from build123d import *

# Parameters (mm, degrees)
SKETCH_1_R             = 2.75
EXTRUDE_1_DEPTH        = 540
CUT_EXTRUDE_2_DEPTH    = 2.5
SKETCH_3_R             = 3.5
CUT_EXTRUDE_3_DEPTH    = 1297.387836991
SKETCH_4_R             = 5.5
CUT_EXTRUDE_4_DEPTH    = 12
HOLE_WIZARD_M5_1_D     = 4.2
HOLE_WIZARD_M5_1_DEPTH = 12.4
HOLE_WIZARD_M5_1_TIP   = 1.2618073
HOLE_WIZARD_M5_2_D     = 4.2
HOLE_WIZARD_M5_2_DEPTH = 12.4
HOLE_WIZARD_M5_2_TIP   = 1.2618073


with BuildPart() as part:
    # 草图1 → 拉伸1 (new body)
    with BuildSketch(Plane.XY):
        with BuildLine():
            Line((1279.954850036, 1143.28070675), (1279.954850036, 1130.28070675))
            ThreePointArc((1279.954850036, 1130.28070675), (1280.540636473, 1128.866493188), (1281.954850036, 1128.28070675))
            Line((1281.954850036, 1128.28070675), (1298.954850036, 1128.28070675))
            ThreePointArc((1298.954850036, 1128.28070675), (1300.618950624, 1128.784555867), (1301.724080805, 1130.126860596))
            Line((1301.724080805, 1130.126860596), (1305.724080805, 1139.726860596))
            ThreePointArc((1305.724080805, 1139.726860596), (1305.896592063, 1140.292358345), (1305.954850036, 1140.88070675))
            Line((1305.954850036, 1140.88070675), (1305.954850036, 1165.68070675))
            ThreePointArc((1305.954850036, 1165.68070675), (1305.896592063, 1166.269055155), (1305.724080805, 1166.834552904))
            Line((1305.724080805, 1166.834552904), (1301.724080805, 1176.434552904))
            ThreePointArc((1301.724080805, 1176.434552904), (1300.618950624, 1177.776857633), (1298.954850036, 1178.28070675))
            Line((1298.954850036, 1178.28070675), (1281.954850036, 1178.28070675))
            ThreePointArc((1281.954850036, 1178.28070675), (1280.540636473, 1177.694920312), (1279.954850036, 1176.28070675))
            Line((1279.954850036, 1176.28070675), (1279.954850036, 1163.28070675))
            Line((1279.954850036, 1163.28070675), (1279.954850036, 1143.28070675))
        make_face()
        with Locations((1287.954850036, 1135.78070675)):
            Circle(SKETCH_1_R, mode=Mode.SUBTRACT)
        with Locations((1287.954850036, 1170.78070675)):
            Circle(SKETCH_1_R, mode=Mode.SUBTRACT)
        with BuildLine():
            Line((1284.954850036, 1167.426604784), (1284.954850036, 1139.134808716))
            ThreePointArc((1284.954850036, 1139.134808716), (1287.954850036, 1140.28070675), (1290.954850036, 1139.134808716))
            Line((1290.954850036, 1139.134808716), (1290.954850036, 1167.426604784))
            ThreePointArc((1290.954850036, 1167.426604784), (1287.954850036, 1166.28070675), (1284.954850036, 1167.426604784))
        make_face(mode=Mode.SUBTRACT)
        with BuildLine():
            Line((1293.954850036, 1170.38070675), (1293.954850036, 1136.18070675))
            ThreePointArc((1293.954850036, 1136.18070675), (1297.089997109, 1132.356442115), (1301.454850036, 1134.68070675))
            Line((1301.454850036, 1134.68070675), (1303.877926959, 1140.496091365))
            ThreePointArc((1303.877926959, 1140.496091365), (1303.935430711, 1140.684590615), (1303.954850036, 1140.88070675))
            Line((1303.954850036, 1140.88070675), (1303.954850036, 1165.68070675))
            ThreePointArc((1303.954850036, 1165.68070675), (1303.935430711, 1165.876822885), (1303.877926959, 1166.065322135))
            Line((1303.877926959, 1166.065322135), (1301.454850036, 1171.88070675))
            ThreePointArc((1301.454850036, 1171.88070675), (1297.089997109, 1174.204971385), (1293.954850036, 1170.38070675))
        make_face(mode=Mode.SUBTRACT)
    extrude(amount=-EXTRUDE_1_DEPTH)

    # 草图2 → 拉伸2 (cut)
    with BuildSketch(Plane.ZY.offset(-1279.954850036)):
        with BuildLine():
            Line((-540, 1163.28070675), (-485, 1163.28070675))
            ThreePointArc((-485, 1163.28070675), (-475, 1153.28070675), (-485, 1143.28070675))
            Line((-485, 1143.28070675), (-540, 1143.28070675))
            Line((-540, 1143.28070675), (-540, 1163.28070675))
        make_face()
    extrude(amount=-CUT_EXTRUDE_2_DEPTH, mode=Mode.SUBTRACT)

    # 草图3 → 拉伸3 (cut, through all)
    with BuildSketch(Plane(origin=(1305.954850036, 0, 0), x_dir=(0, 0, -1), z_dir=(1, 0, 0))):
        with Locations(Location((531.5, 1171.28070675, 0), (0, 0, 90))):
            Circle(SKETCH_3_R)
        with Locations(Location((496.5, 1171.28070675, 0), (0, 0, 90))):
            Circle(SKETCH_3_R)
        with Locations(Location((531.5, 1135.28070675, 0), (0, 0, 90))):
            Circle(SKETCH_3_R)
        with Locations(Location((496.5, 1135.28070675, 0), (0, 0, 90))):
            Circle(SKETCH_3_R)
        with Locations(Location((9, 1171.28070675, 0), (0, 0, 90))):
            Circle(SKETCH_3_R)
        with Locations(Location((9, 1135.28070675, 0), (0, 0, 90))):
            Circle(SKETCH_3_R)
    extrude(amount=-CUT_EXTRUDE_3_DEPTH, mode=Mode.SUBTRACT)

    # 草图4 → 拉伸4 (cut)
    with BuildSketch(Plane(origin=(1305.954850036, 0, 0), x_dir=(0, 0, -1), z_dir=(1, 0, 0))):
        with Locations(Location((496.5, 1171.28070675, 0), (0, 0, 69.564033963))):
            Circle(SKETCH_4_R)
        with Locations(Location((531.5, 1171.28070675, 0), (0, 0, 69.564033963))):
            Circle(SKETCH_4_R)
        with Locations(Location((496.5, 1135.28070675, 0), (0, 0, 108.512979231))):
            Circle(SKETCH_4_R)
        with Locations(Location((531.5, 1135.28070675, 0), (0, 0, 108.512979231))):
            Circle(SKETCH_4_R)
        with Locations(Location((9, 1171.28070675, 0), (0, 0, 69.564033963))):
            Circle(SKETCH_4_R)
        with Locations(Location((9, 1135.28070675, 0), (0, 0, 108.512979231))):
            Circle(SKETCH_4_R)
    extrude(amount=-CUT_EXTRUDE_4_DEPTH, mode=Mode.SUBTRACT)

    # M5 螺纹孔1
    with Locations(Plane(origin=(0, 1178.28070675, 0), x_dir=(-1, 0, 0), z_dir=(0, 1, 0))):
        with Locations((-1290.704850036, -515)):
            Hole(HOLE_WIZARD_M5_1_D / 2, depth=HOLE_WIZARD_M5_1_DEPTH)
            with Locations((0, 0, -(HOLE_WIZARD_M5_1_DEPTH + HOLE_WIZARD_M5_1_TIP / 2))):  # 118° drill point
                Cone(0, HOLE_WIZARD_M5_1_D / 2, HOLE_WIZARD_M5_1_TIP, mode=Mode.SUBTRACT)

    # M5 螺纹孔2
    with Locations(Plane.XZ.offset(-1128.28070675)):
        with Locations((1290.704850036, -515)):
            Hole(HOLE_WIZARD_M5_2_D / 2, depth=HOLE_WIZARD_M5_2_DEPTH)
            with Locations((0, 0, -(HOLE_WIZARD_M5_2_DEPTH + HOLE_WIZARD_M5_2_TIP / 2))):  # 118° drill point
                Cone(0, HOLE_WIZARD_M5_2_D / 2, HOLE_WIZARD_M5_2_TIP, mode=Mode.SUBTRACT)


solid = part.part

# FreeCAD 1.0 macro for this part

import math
import FreeCAD as App
import Part
import Sketcher

doc = App.newDocument("Part")
params = doc.addObject("Spreadsheet::Sheet", "Params")
for row, (alias, value) in enumerate([
    ("sketch1_radius", "2 mm"),
    ("sketch1_radius2", "3 mm"),
    ("sketch1_radius3", "1 mm"),
    ("sketch1_diameter", "5.5 mm"),
    ("sketch1_radius4", "4.5 mm"),
    ("pad1_length", "540 mm"),
    ("sketch2_radius", "10 mm"),
    ("sketch2_height", "55 mm"),
    ("pocket1_length", "2.5 mm"),
    ("sketch3_diameter", "7 mm"),
    ("sketch4_diameter", "11 mm"),
    ("pocket3_length", "12 mm"),
    ("sketch5_diameter", "4.2 mm"),
    ("hole_diameter", "4.2 mm"),
    ("hole_depth", "12.4 mm"),
    ("sketch6_diameter", "4.2 mm"),
    ("hole2_diameter", "4.2 mm"),
    ("hole2_depth", "12.4 mm"),
], start=1):
    params.set(f"A{row}", alias)
    params.set(f"B{row}", "=" + value)
    params.setAlias(f"B{row}", alias)

body = doc.addObject("PartDesign::Body", "Body")

# Sketch on XY plane
sketch1 = body.newObject("Sketcher::SketchObject", "Sketch")
sketch1.AttachmentSupport = (doc.getObject("XY_Plane"), [""])
sketch1.MapMode = "FlatFace"
sketch1.addGeometry([
    Part.ArcOfCircle(Part.Circle(App.Vector(1281.95, 1130.28, 0), App.Vector(0, 0, 1), 2), math.radians(180), math.radians(270)),  # 0
    Part.LineSegment(App.Vector(1281.95, 1128.28, 0), App.Vector(1298.95, 1128.28, 0)),  # 1
    Part.ArcOfCircle(Part.Circle(App.Vector(1298.95, 1131.28, 0), App.Vector(0, 0, 1), 3), math.radians(-90), math.radians(-23)),  # 2
    Part.LineSegment(App.Vector(1301.72, 1130.13, 0), App.Vector(1305.72, 1139.73, 0)),  # 3
    Part.ArcOfCircle(Part.Circle(App.Vector(1302.95, 1140.88, 0), App.Vector(0, 0, 1), 3), math.radians(-23), math.radians(0)),  # 4
    Part.LineSegment(App.Vector(1305.95, 1140.88, 0), App.Vector(1305.95, 1165.68, 0)),  # 5
    Part.ArcOfCircle(Part.Circle(App.Vector(1302.95, 1165.68, 0), App.Vector(0, 0, 1), 3), math.radians(0), math.radians(23)),  # 6
    Part.LineSegment(App.Vector(1305.72, 1166.83, 0), App.Vector(1301.72, 1176.43, 0)),  # 7
    Part.ArcOfCircle(Part.Circle(App.Vector(1298.95, 1175.28, 0), App.Vector(0, 0, 1), 3), math.radians(23), math.radians(90)),  # 8
    Part.LineSegment(App.Vector(1298.95, 1178.28, 0), App.Vector(1281.95, 1178.28, 0)),  # 9
    Part.ArcOfCircle(Part.Circle(App.Vector(1281.95, 1176.28, 0), App.Vector(0, 0, 1), 2), math.radians(90), math.radians(180)),  # 10
    Part.LineSegment(App.Vector(1279.95, 1176.28, 0), App.Vector(1279.95, 1130.28, 0)),  # 11
    Part.Circle(App.Vector(1287.95, 1135.78, 0), App.Vector(0, 0, 1), 2.75),  # 12
    Part.LineSegment(App.Vector(1284.95, 1139.13, 0), App.Vector(1284.95, 1167.43, 0)),  # 13
    Part.ArcOfCircle(Part.Circle(App.Vector(1287.95, 1170.78, 0), App.Vector(0, 0, 1), 4.5), math.radians(-132), math.radians(-48)),  # 14
    Part.LineSegment(App.Vector(1290.95, 1167.43, 0), App.Vector(1290.95, 1139.13, 0)),  # 15
    Part.ArcOfCircle(Part.Circle(App.Vector(1287.95, 1135.78, 0), App.Vector(0, 0, 1), 4.5), math.radians(48), math.radians(132)),  # 16
    Part.Circle(App.Vector(1287.95, 1170.78, 0), App.Vector(0, 0, 1), 2.75),  # 17
    Part.LineSegment(App.Vector(1293.95, 1136.18, 0), App.Vector(1293.95, 1170.38, 0)),  # 18
    Part.ArcOfCircle(Part.Circle(App.Vector(1297.85, 1170.38, 0), App.Vector(0, 0, 1), 3.9), math.radians(23), math.radians(180)),  # 19
    Part.LineSegment(App.Vector(1301.45, 1171.88, 0), App.Vector(1303.88, 1166.07, 0)),  # 20
    Part.ArcOfCircle(Part.Circle(App.Vector(1302.95, 1165.68, 0), App.Vector(0, 0, 1), 1), math.radians(0), math.radians(23)),  # 21
    Part.LineSegment(App.Vector(1303.95, 1165.68, 0), App.Vector(1303.95, 1140.88, 0)),  # 22
    Part.ArcOfCircle(Part.Circle(App.Vector(1302.95, 1140.88, 0), App.Vector(0, 0, 1), 1), math.radians(-23), math.radians(0)),  # 23
    Part.LineSegment(App.Vector(1303.88, 1140.5, 0), App.Vector(1301.45, 1134.68, 0)),  # 24
    Part.ArcOfCircle(Part.Circle(App.Vector(1297.85, 1136.18, 0), App.Vector(0, 0, 1), 3.9), math.radians(180), math.radians(337)),  # 25
], False)
sketch1.addConstraint([
    Sketcher.Constraint("Tangent", 0, 2, 1, 1),
    Sketcher.Constraint("Tangent", 1, 2, 2, 1),
    Sketcher.Constraint("Tangent", 2, 2, 3, 1),
    Sketcher.Constraint("Tangent", 3, 2, 4, 1),
    Sketcher.Constraint("Tangent", 4, 2, 5, 1),
    Sketcher.Constraint("Tangent", 5, 2, 6, 1),
    Sketcher.Constraint("Tangent", 6, 2, 7, 1),
    Sketcher.Constraint("Tangent", 7, 2, 8, 1),
    Sketcher.Constraint("Tangent", 8, 2, 9, 1),
    Sketcher.Constraint("Tangent", 9, 2, 10, 1),
    Sketcher.Constraint("Tangent", 10, 2, 11, 1),
    Sketcher.Constraint("Tangent", 11, 2, 0, 1),
    Sketcher.Constraint("Coincident", 13, 2, 14, 1),
    Sketcher.Constraint("Coincident", 14, 2, 15, 1),
    Sketcher.Constraint("Coincident", 15, 2, 16, 1),
    Sketcher.Constraint("Coincident", 16, 2, 13, 1),
    Sketcher.Constraint("Tangent", 18, 2, 19, 2),
    Sketcher.Constraint("Tangent", 19, 1, 20, 1),
    Sketcher.Constraint("Tangent", 20, 2, 21, 2),
    Sketcher.Constraint("Tangent", 21, 1, 22, 1),
    Sketcher.Constraint("Tangent", 22, 2, 23, 2),
    Sketcher.Constraint("Tangent", 23, 1, 24, 1),
    Sketcher.Constraint("Tangent", 24, 2, 25, 2),
    Sketcher.Constraint("Tangent", 25, 1, 18, 1),
    Sketcher.Constraint("Horizontal", 1),
    Sketcher.Constraint("Vertical", 5),
    Sketcher.Constraint("Horizontal", 9),
    Sketcher.Constraint("Vertical", 11),
    Sketcher.Constraint("Vertical", 13),
    Sketcher.Constraint("Vertical", 15),
    Sketcher.Constraint("Vertical", 18),
    Sketcher.Constraint("Vertical", 22),
    Sketcher.Constraint("Coincident", 16, 3, 12, 3),
    Sketcher.Constraint("Coincident", 17, 3, 14, 3),
    Sketcher.Constraint("Coincident", 21, 3, 6, 3),
    Sketcher.Constraint("Coincident", 23, 3, 4, 3),
    Sketcher.Constraint("Equal", 2, 4),
    Sketcher.Constraint("Equal", 4, 6),
    Sketcher.Constraint("Equal", 6, 8),
    Sketcher.Constraint("Equal", 0, 10),
    Sketcher.Constraint("Equal", 14, 16),
    Sketcher.Constraint("Equal", 12, 17),
    Sketcher.Constraint("Equal", 19, 25),
    Sketcher.Constraint("Parallel", 7, 20),
    Sketcher.Constraint("Parallel", 3, 24),
    Sketcher.Constraint("Horizontal", 13, 2, 14, 2),
    Sketcher.Constraint("Horizontal", 15, 2, 16, 2),
    Sketcher.Constraint("Vertical", 2, 3, 8, 3),
    Sketcher.Constraint("Vertical", 3, 2, 6, 2),
    Sketcher.Constraint("Radius", 0, 2.0),
    Sketcher.Constraint("Radius", 2, 3.0),
    Sketcher.Constraint("Radius", 21, 1.0),
    Sketcher.Constraint("Diameter", 12, 5.5),
    Sketcher.Constraint("Radius", 14, 4.5),
    Sketcher.Constraint("Radius", 19, 3.9),
    Sketcher.Constraint("DistanceX", 1, 1, 1, 2, 17.0),
    Sketcher.Constraint("DistanceY", 11, 2, 11, 1, 46.0),
    Sketcher.Constraint("DistanceY", 5, 1, 5, 2, 24.8),
    Sketcher.Constraint("DistanceY", 18, 1, 18, 2, 34.2),
    Sketcher.Constraint("DistanceX", 2, 3, 4, 3, 4.0),
    Sketcher.Constraint("DistanceX", 0, 3, 12, 3, 6.0),
    Sketcher.Constraint("DistanceY", 12, 3, 14, 3, 35.0),
    Sketcher.Constraint("DistanceX", 13, 2, 14, 3, 3.0),
    Sketcher.Constraint("DistanceY", 0, 3, 12, 3, 5.5),
    Sketcher.Constraint("DistanceX", -1, 1, 0, 3, 1281.95485),
    Sketcher.Constraint("DistanceY", -1, 1, 2, 2, 1130.126861),
])
sketch1.setExpression("Constraints[49]", "Params.sketch1_radius")
sketch1.setExpression("Constraints[50]", "Params.sketch1_radius2")
sketch1.setExpression("Constraints[51]", "Params.sketch1_radius3")
sketch1.setExpression("Constraints[52]", "Params.sketch1_diameter")
sketch1.setExpression("Constraints[53]", "Params.sketch1_radius4")
pad1 = body.newObject("PartDesign::Pad", "Pad")
pad1.Profile = sketch1
pad1.setExpression("Length", "Params.pad1_length")
pad1.Reversed = True

# Sketch on YZ plane
sketch2 = body.newObject("Sketcher::SketchObject", "Sketch001")
sketch2.AttachmentSupport = (doc.getObject("YZ_Plane"), [""])
sketch2.MapMode = "FlatFace"
sketch2.AttachmentOffset = App.Placement(App.Vector(0, 0, 1279.95485), App.Rotation())
sketch2.addGeometry([
    Part.LineSegment(App.Vector(1163, -485, 0), App.Vector(1163, -540, 0)),
    Part.LineSegment(App.Vector(1163, -540, 0), App.Vector(1143, -540, 0)),
    Part.LineSegment(App.Vector(1143, -540, 0), App.Vector(1143, -485, 0)),
    Part.ArcOfCircle(Part.Circle(App.Vector(1153, -485, 0), App.Vector(0, 0, 1), 10), math.radians(0), math.radians(180)),
], False)
sketch2.addConstraint([
    Sketcher.Constraint("Coincident", 0, 2, 1, 1),
    Sketcher.Constraint("Coincident", 1, 2, 2, 1),
    Sketcher.Constraint("Tangent", 2, 2, 3, 2),
    Sketcher.Constraint("Tangent", 3, 1, 0, 1),
    Sketcher.Constraint("Vertical", 0),
    Sketcher.Constraint("Horizontal", 1),
    Sketcher.Constraint("Vertical", 2),
    Sketcher.Constraint("Radius", 3, 10.0),
    Sketcher.Constraint("DistanceY", 0, 2, 0, 1, 55.0),
    Sketcher.Constraint("DistanceY", 3, 3, -1, 1, 485.0),
    Sketcher.Constraint("DistanceX", -1, 1, 3, 3, 1153.280707),
])
sketch2.setExpression("Constraints[7]", "Params.sketch2_radius")
sketch2.setExpression("Constraints[8]", "Params.sketch2_height")
pocket1 = body.newObject("PartDesign::Pocket", "Pocket")
pocket1.Profile = sketch2
pocket1.setExpression("Length", "Params.pocket1_length")
pocket1.Reversed = True

# Sketch on YZ plane
sketch3 = body.newObject("Sketcher::SketchObject", "Sketch002")
sketch3.AttachmentSupport = (doc.getObject("YZ_Plane"), [""])
sketch3.MapMode = "FlatFace"
sketch3.AttachmentOffset = App.Placement(App.Vector(0, 0, 1305.95485), App.Rotation())
sketch3.addGeometry([
    Part.Circle(App.Vector(1171.3, -531.5, 0), App.Vector(0, 0, 1), 3.5),  # 0
    Part.Circle(App.Vector(1171.3, -496.5, 0), App.Vector(0, 0, 1), 3.5),  # 1
    Part.Circle(App.Vector(1135.3, -531.5, 0), App.Vector(0, 0, 1), 3.5),  # 2
    Part.Circle(App.Vector(1135.3, -496.5, 0), App.Vector(0, 0, 1), 3.5),  # 3
    Part.Circle(App.Vector(1171.3, -9, 0), App.Vector(0, 0, 1), 3.5),  # 4
    Part.Circle(App.Vector(1135.3, -9, 0), App.Vector(0, 0, 1), 3.5),  # 5
], False)
sketch3.addConstraint([
    Sketcher.Constraint("Equal", 0, 1),
    Sketcher.Constraint("Equal", 1, 2),
    Sketcher.Constraint("Equal", 2, 3),
    Sketcher.Constraint("Equal", 3, 4),
    Sketcher.Constraint("Equal", 4, 5),
    Sketcher.Constraint("Horizontal", 0, 3, 2, 3),
    Sketcher.Constraint("Horizontal", 1, 3, 3, 3),
    Sketcher.Constraint("Horizontal", 4, 3, 5, 3),
    Sketcher.Constraint("Vertical", 0, 3, 1, 3),
    Sketcher.Constraint("Vertical", 2, 3, 3, 3),
    Sketcher.Constraint("Vertical", 1, 3, 4, 3),
    Sketcher.Constraint("Vertical", 3, 3, 5, 3),
    Sketcher.Constraint("Diameter", 0, 7.0),
    Sketcher.Constraint("DistanceY", 4, 3, -1, 1, 9.0),
    Sketcher.Constraint("DistanceY", 0, 3, 1, 3, 35.0),
    Sketcher.Constraint("DistanceX", 2, 3, 0, 3, 36.0),
    Sketcher.Constraint("DistanceY", 0, 3, -1, 1, 531.5),
    Sketcher.Constraint("DistanceX", -1, 1, 0, 3, 1171.280707),
])
sketch3.setExpression("Constraints[12]", "Params.sketch3_diameter")
pocket2 = body.newObject("PartDesign::Pocket", "Pocket001")
pocket2.Profile = sketch3
pocket2.Type = "ThroughAll"

# Sketch on YZ plane
sketch4 = body.newObject("Sketcher::SketchObject", "Sketch003")
sketch4.AttachmentSupport = (doc.getObject("YZ_Plane"), [""])
sketch4.MapMode = "FlatFace"
sketch4.AttachmentOffset = App.Placement(App.Vector(0, 0, 1305.95485), App.Rotation())
sketch4.addGeometry([
    Part.Circle(App.Vector(1171, -496, 0), App.Vector(0, 0, 1), 6),  # 0
    Part.Circle(App.Vector(1171, -532, 0), App.Vector(0, 0, 1), 6),  # 1
    Part.Circle(App.Vector(1135, -496, 0), App.Vector(0, 0, 1), 6),  # 2
    Part.Circle(App.Vector(1135, -532, 0), App.Vector(0, 0, 1), 6),  # 3
    Part.Circle(App.Vector(1171, -9, 0), App.Vector(0, 0, 1), 6),  # 4
    Part.Circle(App.Vector(1135, -9, 0), App.Vector(0, 0, 1), 6),  # 5
], False)
sketch4.addConstraint([
    Sketcher.Constraint("Equal", 0, 1),
    Sketcher.Constraint("Equal", 1, 2),
    Sketcher.Constraint("Equal", 2, 3),
    Sketcher.Constraint("Equal", 3, 4),
    Sketcher.Constraint("Equal", 4, 5),
    Sketcher.Constraint("Horizontal", 0, 3, 2, 3),
    Sketcher.Constraint("Horizontal", 1, 3, 3, 3),
    Sketcher.Constraint("Horizontal", 4, 3, 5, 3),
    Sketcher.Constraint("Vertical", 0, 3, 1, 3),
    Sketcher.Constraint("Vertical", 2, 3, 3, 3),
    Sketcher.Constraint("Vertical", 1, 3, 4, 3),
    Sketcher.Constraint("Vertical", 3, 3, 5, 3),
    Sketcher.Constraint("Diameter", 0, 11.0),
    Sketcher.Constraint("DistanceY", 4, 3, -1, 1, 9.0),
    Sketcher.Constraint("DistanceY", 1, 3, 0, 3, 35.0),
    Sketcher.Constraint("DistanceX", 2, 3, 0, 3, 36.0),
    Sketcher.Constraint("DistanceY", 0, 3, -1, 1, 496.5),
    Sketcher.Constraint("DistanceX", -1, 1, 0, 3, 1171.280707),
])
sketch4.setExpression("Constraints[12]", "Params.sketch4_diameter")
pocket3 = body.newObject("PartDesign::Pocket", "Pocket002")
pocket3.Profile = sketch4
pocket3.setExpression("Length", "Params.pocket3_length")

# Sketch on XZ plane
sketch5 = body.newObject("Sketcher::SketchObject", "Sketch004")
sketch5.AttachmentSupport = (doc.getObject("XZ_Plane"), [""])
sketch5.MapMode = "FlatFace"
sketch5.AttachmentOffset = App.Placement(App.Vector(0, 0, -1178.280707), App.Rotation())
sketch5.addGeometry(Part.Circle(App.Vector(1290.70485, -515, 0), App.Vector(0, 0, 1), 2.1), False)
sketch5.addConstraint([
    Sketcher.Constraint("Diameter", 0, 4.2),
    Sketcher.Constraint("DistanceY", 0, 3, -1, 1, 515.0),
    Sketcher.Constraint("DistanceX", -1, 1, 0, 3, 1290.70485),
])
sketch5.setExpression("Constraints[0]", "Params.sketch5_diameter")
doc.recompute()
hole = body.newObject("PartDesign::Hole", "Hole")
hole.Profile = sketch5
hole.ThreadType = "None"
hole.setExpression("Diameter", "Params.hole_diameter")
hole.DepthType = "Dimension"
hole.setExpression("Depth", "Params.hole_depth")
hole.DrillPoint = "Angled"
hole.DrillPointAngle = 118
hole.Reversed = True

# Sketch on XZ plane
sketch6 = body.newObject("Sketcher::SketchObject", "Sketch005")
sketch6.AttachmentSupport = (doc.getObject("XZ_Plane"), [""])
sketch6.MapMode = "FlatFace"
sketch6.AttachmentOffset = App.Placement(App.Vector(0, 0, -1128.280707), App.Rotation())
sketch6.addGeometry(Part.Circle(App.Vector(1290.70485, -515, 0), App.Vector(0, 0, 1), 2.1), False)
sketch6.addConstraint([
    Sketcher.Constraint("Diameter", 0, 4.2),
    Sketcher.Constraint("DistanceY", 0, 3, -1, 1, 515.0),
    Sketcher.Constraint("DistanceX", -1, 1, 0, 3, 1290.70485),
])
sketch6.setExpression("Constraints[0]", "Params.sketch6_diameter")
doc.recompute()
hole2 = body.newObject("PartDesign::Hole", "Hole001")
hole2.Profile = sketch6
hole2.ThreadType = "None"
hole2.setExpression("Diameter", "Params.hole2_diameter")
hole2.DepthType = "Dimension"
hole2.setExpression("Depth", "Params.hole2_depth")
hole2.DrillPoint = "Angled"
hole2.DrillPointAngle = 118

doc.recompute()
